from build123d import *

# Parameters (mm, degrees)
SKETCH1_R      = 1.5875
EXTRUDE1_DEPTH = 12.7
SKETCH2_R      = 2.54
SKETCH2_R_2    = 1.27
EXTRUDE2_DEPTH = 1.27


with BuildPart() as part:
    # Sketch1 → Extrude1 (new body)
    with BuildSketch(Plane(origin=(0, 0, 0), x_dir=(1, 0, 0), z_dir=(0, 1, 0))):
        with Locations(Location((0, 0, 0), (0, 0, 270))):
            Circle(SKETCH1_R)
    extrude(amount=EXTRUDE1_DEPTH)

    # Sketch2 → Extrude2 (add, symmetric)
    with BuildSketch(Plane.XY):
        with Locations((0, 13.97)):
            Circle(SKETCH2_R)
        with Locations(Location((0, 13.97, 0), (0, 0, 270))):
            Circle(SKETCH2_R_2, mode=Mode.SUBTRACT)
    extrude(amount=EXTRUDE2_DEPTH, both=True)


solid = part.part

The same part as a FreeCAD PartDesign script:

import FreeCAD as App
import Part
import Sketcher
from FreeCAD import Vector
Q = App.Units.Quantity

doc = App.newDocument("Part")
body = doc.addObject("PartDesign::Body", "Body")

# Sketch on XZ plane
sketch1 = body.newObject("Sketcher::SketchObject", "Sketch")
sketch1.AttachmentSupport = (doc.getObject("XZ_Plane"), [""])
sketch1.MapMode = "FlatFace"
sketch1.addGeometry(Part.Circle(Vector(0, 0, 0), Vector(0, 0, 1), 1.6), False)
sketch1.addConstraint([
    Sketcher.Constraint("Coincident", 0, 3, -1, 1),
    Sketcher.Constraint("Diameter", 0, Q("0.125 in")),
])
pad1 = body.newObject("PartDesign::Pad", "Pad")
pad1.Profile = sketch1
pad1.Length = Q("0.5 in")
pad1.Reversed = True

# Sketch on XY plane
sketch2 = body.newObject("Sketcher::SketchObject", "Sketch001")
sketch2.AttachmentSupport = (doc.getObject("XY_Plane"), [""])
sketch2.MapMode = "FlatFace"
sketch2.addGeometry([
    Part.Circle(Vector(0, 14, 0), Vector(0, 0, 1), 2.5),
    Part.Circle(Vector(0, 14, 0), Vector(0, 0, 1), 1.3),
], False)
sketch2.addConstraint([
    Sketcher.Constraint("Coincident", 1, 3, 0, 3),
    Sketcher.Constraint("PointOnObject", 0, 3, -2),
    Sketcher.Constraint("Diameter", 0, Q("0.2 in")),
    Sketcher.Constraint("Diameter", 1, Q("0.1 in")),
    Sketcher.Constraint("DistanceY", -1, 1, 0, 3, Q("0.55 in")),
])
pad2 = body.newObject("PartDesign::Pad", "Pad001")
pad2.Profile = sketch2
pad2.Length = Q("0.1 in")
pad2.Midplane = True

doc.recompute()
